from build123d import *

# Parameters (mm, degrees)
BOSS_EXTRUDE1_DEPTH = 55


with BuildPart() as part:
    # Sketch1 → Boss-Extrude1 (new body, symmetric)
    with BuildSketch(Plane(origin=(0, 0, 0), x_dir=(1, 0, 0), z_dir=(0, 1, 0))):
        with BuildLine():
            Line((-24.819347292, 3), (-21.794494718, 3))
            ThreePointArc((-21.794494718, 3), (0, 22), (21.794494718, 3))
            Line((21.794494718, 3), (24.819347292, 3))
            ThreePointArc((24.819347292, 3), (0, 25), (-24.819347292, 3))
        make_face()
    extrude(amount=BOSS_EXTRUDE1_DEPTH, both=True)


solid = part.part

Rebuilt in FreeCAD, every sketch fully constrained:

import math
import FreeCAD as App
import Part
import Sketcher
Q = App.Units.Quantity

doc = App.newDocument("Part")
body = doc.addObject("PartDesign::Body", "Body")

sketch1 = body.newObject("Sketcher::SketchObject", "Sketch")
sketch1.AttachmentSupport = (doc.getObject("XZ_Plane"), [""])
sketch1.MapMode = "FlatFace"
sketch1.addGeometry([
    Part.LineSegment(App.Vector(-24.8, -3, 0), App.Vector(-21.8, -3, 0)),
    Part.ArcOfCircle(Part.Circle(App.Vector(0, 0, 0), App.Vector(0, 0, 1), 22), math.radians(-172), math.radians(-8)),
    Part.LineSegment(App.Vector(21.8, -3, 0), App.Vector(24.8, -3, 0)),
    Part.ArcOfCircle(Part.Circle(App.Vector(0, 0, 0), App.Vector(0, 0, 1), 25), math.radians(-173), math.radians(-7)),
], False)
sketch1.addConstraint([
    Sketcher.Constraint("Coincident", 0, 2, 1, 1),
    Sketcher.Constraint("Coincident", 1, 2, 2, 1),
    Sketcher.Constraint("Coincident", 2, 2, 3, 2),
    Sketcher.Constraint("Coincident", 3, 1, 0, 1),
    Sketcher.Constraint("Horizontal", 0),
    Sketcher.Constraint("Horizontal", 2),
    Sketcher.Constraint("Coincident", 1, 3, -1, 1),
    Sketcher.Constraint("Coincident", 3, 3, -1, 1),
    Sketcher.Constraint("Horizontal", 0, 2, 1, 2),
    Sketcher.Constraint("Radius", 1, Q("22 mm")),
    Sketcher.Constraint("Radius", 3, Q("25 mm")),
    Sketcher.Constraint("DistanceY", 0, 2, -1, 1, Q("3 mm")),
])
pad1 = body.newObject("PartDesign::Pad", "Pad")
pad1.Profile = sketch1
pad1.Length = 110
pad1.Midplane = True

doc.recompute()
